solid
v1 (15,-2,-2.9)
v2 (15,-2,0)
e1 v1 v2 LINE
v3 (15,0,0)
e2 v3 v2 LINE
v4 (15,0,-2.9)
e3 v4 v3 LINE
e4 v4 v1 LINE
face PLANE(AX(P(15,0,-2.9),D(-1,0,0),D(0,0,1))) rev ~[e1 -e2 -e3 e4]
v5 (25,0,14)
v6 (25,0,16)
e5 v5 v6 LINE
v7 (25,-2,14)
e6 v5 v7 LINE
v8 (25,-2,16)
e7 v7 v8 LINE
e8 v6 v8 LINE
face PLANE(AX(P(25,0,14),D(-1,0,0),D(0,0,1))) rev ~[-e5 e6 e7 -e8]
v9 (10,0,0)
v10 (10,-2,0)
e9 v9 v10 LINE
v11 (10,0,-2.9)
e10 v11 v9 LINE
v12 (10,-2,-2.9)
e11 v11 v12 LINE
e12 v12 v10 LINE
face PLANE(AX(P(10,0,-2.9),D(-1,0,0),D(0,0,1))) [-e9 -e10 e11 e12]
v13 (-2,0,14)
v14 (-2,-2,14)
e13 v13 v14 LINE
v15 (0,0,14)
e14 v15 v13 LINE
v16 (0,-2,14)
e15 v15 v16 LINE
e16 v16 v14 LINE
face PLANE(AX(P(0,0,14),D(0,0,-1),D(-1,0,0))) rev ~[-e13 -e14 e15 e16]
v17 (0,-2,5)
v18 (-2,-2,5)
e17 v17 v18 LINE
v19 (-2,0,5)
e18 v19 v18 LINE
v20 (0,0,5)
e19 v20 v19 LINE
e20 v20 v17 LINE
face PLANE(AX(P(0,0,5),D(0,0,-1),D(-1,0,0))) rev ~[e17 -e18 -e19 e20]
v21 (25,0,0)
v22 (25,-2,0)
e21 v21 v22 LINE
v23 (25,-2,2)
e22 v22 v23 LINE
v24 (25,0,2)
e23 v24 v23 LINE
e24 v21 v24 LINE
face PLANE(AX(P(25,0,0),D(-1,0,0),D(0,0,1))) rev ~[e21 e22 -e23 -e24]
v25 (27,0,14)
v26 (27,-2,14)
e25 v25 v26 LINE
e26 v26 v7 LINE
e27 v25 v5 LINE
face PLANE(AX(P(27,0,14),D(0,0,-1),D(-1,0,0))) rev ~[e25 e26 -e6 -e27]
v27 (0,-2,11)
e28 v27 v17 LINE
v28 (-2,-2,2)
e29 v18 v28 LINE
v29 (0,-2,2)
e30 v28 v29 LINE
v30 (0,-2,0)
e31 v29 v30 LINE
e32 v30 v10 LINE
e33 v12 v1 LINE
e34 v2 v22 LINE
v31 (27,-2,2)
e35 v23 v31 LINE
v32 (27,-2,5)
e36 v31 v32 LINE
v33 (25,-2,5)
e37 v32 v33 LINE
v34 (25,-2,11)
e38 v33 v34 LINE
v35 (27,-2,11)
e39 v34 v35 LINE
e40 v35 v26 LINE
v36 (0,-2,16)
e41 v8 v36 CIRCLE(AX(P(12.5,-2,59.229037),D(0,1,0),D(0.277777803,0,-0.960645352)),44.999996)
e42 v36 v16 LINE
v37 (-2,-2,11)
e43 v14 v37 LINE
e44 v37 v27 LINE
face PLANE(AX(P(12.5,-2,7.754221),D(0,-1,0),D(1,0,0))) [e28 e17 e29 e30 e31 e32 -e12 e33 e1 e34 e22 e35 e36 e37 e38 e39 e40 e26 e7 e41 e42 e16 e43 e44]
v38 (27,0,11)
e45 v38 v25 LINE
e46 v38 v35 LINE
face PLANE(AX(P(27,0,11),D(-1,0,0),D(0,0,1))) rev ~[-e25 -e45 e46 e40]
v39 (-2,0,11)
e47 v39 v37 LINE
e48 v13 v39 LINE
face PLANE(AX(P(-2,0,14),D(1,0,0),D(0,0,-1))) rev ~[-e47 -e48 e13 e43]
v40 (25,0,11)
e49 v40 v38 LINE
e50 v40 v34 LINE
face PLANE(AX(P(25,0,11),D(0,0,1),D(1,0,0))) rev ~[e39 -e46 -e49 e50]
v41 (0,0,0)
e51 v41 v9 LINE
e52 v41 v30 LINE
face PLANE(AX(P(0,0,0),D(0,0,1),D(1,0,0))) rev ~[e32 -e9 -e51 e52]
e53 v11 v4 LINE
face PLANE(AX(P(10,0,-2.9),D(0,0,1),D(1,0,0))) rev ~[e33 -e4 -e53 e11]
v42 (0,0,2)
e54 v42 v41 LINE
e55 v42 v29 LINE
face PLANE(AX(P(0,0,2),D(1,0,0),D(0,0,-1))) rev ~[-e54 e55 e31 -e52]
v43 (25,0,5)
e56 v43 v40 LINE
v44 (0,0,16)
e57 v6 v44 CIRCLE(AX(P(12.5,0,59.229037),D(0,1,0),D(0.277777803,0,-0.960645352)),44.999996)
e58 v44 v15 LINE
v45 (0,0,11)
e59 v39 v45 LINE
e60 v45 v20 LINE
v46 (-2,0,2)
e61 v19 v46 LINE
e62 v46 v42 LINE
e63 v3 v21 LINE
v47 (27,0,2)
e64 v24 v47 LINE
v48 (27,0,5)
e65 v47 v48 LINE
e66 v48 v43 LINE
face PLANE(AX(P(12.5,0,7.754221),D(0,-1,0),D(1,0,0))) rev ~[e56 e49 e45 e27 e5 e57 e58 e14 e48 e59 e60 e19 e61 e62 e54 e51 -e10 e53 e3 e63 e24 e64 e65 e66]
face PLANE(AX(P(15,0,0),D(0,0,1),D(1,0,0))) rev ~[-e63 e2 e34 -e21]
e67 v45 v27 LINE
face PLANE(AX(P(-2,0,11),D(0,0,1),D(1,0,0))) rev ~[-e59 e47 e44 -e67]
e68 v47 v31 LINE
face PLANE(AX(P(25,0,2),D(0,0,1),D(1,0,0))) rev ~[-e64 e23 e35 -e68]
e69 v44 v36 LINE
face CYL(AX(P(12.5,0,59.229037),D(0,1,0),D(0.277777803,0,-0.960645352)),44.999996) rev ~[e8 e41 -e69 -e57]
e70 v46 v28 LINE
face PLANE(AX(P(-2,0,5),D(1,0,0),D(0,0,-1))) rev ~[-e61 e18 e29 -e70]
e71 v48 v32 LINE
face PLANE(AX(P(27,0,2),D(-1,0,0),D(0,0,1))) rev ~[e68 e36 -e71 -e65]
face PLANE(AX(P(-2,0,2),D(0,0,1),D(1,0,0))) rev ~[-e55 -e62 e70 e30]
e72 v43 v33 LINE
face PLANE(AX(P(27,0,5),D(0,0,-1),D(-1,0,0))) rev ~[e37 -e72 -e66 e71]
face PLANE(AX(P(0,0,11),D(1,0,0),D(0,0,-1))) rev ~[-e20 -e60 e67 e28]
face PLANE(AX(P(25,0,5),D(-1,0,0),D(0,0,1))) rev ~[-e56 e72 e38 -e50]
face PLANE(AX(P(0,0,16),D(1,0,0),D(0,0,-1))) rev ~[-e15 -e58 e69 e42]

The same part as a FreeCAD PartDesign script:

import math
import FreeCAD as App
import Part
import Sketcher
from FreeCAD import Vector

doc = App.newDocument("Part")
body = doc.addObject("PartDesign::Body", "Body")

# Sketch on XZ plane
sketch1 = body.newObject("Sketcher::SketchObject", "Sketch")
sketch1.AttachmentSupport = (doc.getObject("XZ_Plane"), [""])
sketch1.MapMode = "FlatFace"
sketch1.addGeometry([
    Part.LineSegment(Vector(0, 2, 0), Vector(0, 0, 0)),  # 0
    Part.LineSegment(Vector(0, 0, 0), Vector(10, 0, 0)),  # 1
    Part.LineSegment(Vector(10, 0, 0), Vector(10, -2.9, 0)),  # 2
    Part.LineSegment(Vector(10, -2.9, 0), Vector(15, -2.9, 0)),  # 3
    Part.LineSegment(Vector(15, -2.9, 0), Vector(15, 0, 0)),  # 4
    Part.LineSegment(Vector(15, 0, 0), Vector(25, 0, 0)),  # 5
    Part.LineSegment(Vector(25, 0, 0), Vector(25, 2, 0)),  # 6
    Part.LineSegment(Vector(25, 2, 0), Vector(27, 2, 0)),  # 7
    Part.LineSegment(Vector(27, 2, 0), Vector(27, 5, 0)),  # 8
    Part.LineSegment(Vector(27, 5, 0), Vector(25, 5, 0)),  # 9
    Part.LineSegment(Vector(25, 5, 0), Vector(25, 11, 0)),  # 10
    Part.LineSegment(Vector(25, 11, 0), Vector(27, 11, 0)),  # 11
    Part.LineSegment(Vector(27, 11, 0), Vector(27, 14, 0)),  # 12
    Part.LineSegment(Vector(27, 14, 0), Vector(25, 14, 0)),  # 13
    Part.LineSegment(Vector(25, 14, 0), Vector(25, 16, 0)),  # 14
    Part.ArcOfCircle(Part.Circle(Vector(12.5, 59.2, 0), Vector(0, 0, 1), 45), math.radians(-106), math.radians(-74)),  # 15
    Part.LineSegment(Vector(0, 16, 0), Vector(0, 14, 0)),  # 16
    Part.LineSegment(Vector(0, 14, 0), Vector(-2, 14, 0)),  # 17
    Part.LineSegment(Vector(-2, 14, 0), Vector(-2, 11, 0)),  # 18
    Part.LineSegment(Vector(-2, 11, 0), Vector(0, 11, 0)),  # 19
    Part.LineSegment(Vector(0, 11, 0), Vector(0, 5, 0)),  # 20
    Part.LineSegment(Vector(0, 5, 0), Vector(-2, 5, 0)),  # 21
    Part.LineSegment(Vector(-2, 5, 0), Vector(-2, 2, 0)),  # 22
    Part.LineSegment(Vector(-2, 2, 0), Vector(0, 2, 0)),  # 23
], False)
sketch1.addConstraint([
    Sketcher.Constraint("Coincident", 0, 2, 1, 1),
    Sketcher.Constraint("Coincident", 1, 2, 2, 1),
    Sketcher.Constraint("Coincident", 2, 2, 3, 1),
    Sketcher.Constraint("Coincident", 3, 2, 4, 1),
    Sketcher.Constraint("Coincident", 4, 2, 5, 1),
    Sketcher.Constraint("Coincident", 5, 2, 6, 1),
    Sketcher.Constraint("Coincident", 6, 2, 7, 1),
    Sketcher.Constraint("Coincident", 7, 2, 8, 1),
    Sketcher.Constraint("Coincident", 8, 2, 9, 1),
    Sketcher.Constraint("Coincident", 9, 2, 10, 1),
    Sketcher.Constraint("Coincident", 10, 2, 11, 1),
    Sketcher.Constraint("Coincident", 11, 2, 12, 1),
    Sketcher.Constraint("Coincident", 12, 2, 13, 1),
    Sketcher.Constraint("Coincident", 13, 2, 14, 1),
    Sketcher.Constraint("Coincident", 14, 2, 15, 2),
    Sketcher.Constraint("Coincident", 15, 1, 16, 1),
    Sketcher.Constraint("Coincident", 16, 2, 17, 1),
    Sketcher.Constraint("Coincident", 17, 2, 18, 1),
    Sketcher.Constraint("Coincident", 18, 2, 19, 1),
    Sketcher.Constraint("Coincident", 19, 2, 20, 1),
    Sketcher.Constraint("Coincident", 20, 2, 21, 1),
    Sketcher.Constraint("Coincident", 21, 2, 22, 1),
    Sketcher.Constraint("Coincident", 22, 2, 23, 1),
    Sketcher.Constraint("Coincident", 23, 2, 0, 1),
    Sketcher.Constraint("Vertical", 0),
    Sketcher.Constraint("Horizontal", 1),
    Sketcher.Constraint("Vertical", 2),
    Sketcher.Constraint("Horizontal", 3),
    Sketcher.Constraint("Vertical", 4),
    Sketcher.Constraint("Horizontal", 5),
    Sketcher.Constraint("Vertical", 6),
    Sketcher.Constraint("Horizontal", 7),
    Sketcher.Constraint("Vertical", 8),
    Sketcher.Constraint("Horizontal", 9),
    Sketcher.Constraint("Vertical", 10),
    Sketcher.Constraint("Horizontal", 11),
    Sketcher.Constraint("Vertical", 12),
    Sketcher.Constraint("Horizontal", 13),
    Sketcher.Constraint("Vertical", 14),
    Sketcher.Constraint("Vertical", 16),
    Sketcher.Constraint("Horizontal", 17),
    Sketcher.Constraint("Vertical", 18),
    Sketcher.Constraint("Horizontal", 19),
    Sketcher.Constraint("Vertical", 20),
    Sketcher.Constraint("Horizontal", 21),
    Sketcher.Constraint("Vertical", 22),
    Sketcher.Constraint("Horizontal", 23),
    Sketcher.Constraint("Coincident", 0, 2, -1, 1),
    Sketcher.Constraint("PointOnObject", 4, 2, -1),
    Sketcher.Constraint("PointOnObject", 15, 1, -2),
    Sketcher.Constraint("PointOnObject", 19, 2, -2),
    Sketcher.Constraint("Horizontal", 14, 2, 15, 1),
    Sketcher.Constraint("Horizontal", 13, 2, 16, 2),
    Sketcher.Constraint("Horizontal", 11, 2, 18, 2),
    Sketcher.Constraint("Horizontal", 9, 2, 20, 2),
    Sketcher.Constraint("Horizontal", 7, 2, 22, 2),
    Sketcher.Constraint("Vertical", 6, 2, 9, 2),
    Sketcher.Constraint("Vertical", 8, 2, 11, 2),
    Sketcher.Constraint("Vertical", 10, 2, 13, 2),
    Sketcher.Constraint("Vertical", 18, 2, 21, 2),
    Sketcher.Constraint("Equal", 1, 5),
    Sketcher.Constraint("Equal", 13, 17),
    Sketcher.Constraint("Equal", 23, 0),
    Sketcher.Constraint("Equal", 8, 12),
    Sketcher.Constraint("Equal", 6, 14),
    Sketcher.Constraint("DistanceX", 1, 1, 1, 2, 10.0),
    Sketcher.Constraint("DistanceX", 3, 1, 3, 2, 5.0),
    Sketcher.Constraint("DistanceX", 7, 1, 7, 2, 2.0),
    Sketcher.Constraint("DistanceY", 8, 1, 8, 2, 3.0),
    Sketcher.Constraint("DistanceY", 10, 1, 10, 2, 6.0),
    Sketcher.Constraint("DistanceY", 2, 2, 2, 1, 2.9),
    Sketcher.Constraint("Radius", 15, 44.999996),
])
pad1 = body.newObject("PartDesign::Pad", "Pad")
pad1.Profile = sketch1
pad1.Length = 2

doc.recompute()
